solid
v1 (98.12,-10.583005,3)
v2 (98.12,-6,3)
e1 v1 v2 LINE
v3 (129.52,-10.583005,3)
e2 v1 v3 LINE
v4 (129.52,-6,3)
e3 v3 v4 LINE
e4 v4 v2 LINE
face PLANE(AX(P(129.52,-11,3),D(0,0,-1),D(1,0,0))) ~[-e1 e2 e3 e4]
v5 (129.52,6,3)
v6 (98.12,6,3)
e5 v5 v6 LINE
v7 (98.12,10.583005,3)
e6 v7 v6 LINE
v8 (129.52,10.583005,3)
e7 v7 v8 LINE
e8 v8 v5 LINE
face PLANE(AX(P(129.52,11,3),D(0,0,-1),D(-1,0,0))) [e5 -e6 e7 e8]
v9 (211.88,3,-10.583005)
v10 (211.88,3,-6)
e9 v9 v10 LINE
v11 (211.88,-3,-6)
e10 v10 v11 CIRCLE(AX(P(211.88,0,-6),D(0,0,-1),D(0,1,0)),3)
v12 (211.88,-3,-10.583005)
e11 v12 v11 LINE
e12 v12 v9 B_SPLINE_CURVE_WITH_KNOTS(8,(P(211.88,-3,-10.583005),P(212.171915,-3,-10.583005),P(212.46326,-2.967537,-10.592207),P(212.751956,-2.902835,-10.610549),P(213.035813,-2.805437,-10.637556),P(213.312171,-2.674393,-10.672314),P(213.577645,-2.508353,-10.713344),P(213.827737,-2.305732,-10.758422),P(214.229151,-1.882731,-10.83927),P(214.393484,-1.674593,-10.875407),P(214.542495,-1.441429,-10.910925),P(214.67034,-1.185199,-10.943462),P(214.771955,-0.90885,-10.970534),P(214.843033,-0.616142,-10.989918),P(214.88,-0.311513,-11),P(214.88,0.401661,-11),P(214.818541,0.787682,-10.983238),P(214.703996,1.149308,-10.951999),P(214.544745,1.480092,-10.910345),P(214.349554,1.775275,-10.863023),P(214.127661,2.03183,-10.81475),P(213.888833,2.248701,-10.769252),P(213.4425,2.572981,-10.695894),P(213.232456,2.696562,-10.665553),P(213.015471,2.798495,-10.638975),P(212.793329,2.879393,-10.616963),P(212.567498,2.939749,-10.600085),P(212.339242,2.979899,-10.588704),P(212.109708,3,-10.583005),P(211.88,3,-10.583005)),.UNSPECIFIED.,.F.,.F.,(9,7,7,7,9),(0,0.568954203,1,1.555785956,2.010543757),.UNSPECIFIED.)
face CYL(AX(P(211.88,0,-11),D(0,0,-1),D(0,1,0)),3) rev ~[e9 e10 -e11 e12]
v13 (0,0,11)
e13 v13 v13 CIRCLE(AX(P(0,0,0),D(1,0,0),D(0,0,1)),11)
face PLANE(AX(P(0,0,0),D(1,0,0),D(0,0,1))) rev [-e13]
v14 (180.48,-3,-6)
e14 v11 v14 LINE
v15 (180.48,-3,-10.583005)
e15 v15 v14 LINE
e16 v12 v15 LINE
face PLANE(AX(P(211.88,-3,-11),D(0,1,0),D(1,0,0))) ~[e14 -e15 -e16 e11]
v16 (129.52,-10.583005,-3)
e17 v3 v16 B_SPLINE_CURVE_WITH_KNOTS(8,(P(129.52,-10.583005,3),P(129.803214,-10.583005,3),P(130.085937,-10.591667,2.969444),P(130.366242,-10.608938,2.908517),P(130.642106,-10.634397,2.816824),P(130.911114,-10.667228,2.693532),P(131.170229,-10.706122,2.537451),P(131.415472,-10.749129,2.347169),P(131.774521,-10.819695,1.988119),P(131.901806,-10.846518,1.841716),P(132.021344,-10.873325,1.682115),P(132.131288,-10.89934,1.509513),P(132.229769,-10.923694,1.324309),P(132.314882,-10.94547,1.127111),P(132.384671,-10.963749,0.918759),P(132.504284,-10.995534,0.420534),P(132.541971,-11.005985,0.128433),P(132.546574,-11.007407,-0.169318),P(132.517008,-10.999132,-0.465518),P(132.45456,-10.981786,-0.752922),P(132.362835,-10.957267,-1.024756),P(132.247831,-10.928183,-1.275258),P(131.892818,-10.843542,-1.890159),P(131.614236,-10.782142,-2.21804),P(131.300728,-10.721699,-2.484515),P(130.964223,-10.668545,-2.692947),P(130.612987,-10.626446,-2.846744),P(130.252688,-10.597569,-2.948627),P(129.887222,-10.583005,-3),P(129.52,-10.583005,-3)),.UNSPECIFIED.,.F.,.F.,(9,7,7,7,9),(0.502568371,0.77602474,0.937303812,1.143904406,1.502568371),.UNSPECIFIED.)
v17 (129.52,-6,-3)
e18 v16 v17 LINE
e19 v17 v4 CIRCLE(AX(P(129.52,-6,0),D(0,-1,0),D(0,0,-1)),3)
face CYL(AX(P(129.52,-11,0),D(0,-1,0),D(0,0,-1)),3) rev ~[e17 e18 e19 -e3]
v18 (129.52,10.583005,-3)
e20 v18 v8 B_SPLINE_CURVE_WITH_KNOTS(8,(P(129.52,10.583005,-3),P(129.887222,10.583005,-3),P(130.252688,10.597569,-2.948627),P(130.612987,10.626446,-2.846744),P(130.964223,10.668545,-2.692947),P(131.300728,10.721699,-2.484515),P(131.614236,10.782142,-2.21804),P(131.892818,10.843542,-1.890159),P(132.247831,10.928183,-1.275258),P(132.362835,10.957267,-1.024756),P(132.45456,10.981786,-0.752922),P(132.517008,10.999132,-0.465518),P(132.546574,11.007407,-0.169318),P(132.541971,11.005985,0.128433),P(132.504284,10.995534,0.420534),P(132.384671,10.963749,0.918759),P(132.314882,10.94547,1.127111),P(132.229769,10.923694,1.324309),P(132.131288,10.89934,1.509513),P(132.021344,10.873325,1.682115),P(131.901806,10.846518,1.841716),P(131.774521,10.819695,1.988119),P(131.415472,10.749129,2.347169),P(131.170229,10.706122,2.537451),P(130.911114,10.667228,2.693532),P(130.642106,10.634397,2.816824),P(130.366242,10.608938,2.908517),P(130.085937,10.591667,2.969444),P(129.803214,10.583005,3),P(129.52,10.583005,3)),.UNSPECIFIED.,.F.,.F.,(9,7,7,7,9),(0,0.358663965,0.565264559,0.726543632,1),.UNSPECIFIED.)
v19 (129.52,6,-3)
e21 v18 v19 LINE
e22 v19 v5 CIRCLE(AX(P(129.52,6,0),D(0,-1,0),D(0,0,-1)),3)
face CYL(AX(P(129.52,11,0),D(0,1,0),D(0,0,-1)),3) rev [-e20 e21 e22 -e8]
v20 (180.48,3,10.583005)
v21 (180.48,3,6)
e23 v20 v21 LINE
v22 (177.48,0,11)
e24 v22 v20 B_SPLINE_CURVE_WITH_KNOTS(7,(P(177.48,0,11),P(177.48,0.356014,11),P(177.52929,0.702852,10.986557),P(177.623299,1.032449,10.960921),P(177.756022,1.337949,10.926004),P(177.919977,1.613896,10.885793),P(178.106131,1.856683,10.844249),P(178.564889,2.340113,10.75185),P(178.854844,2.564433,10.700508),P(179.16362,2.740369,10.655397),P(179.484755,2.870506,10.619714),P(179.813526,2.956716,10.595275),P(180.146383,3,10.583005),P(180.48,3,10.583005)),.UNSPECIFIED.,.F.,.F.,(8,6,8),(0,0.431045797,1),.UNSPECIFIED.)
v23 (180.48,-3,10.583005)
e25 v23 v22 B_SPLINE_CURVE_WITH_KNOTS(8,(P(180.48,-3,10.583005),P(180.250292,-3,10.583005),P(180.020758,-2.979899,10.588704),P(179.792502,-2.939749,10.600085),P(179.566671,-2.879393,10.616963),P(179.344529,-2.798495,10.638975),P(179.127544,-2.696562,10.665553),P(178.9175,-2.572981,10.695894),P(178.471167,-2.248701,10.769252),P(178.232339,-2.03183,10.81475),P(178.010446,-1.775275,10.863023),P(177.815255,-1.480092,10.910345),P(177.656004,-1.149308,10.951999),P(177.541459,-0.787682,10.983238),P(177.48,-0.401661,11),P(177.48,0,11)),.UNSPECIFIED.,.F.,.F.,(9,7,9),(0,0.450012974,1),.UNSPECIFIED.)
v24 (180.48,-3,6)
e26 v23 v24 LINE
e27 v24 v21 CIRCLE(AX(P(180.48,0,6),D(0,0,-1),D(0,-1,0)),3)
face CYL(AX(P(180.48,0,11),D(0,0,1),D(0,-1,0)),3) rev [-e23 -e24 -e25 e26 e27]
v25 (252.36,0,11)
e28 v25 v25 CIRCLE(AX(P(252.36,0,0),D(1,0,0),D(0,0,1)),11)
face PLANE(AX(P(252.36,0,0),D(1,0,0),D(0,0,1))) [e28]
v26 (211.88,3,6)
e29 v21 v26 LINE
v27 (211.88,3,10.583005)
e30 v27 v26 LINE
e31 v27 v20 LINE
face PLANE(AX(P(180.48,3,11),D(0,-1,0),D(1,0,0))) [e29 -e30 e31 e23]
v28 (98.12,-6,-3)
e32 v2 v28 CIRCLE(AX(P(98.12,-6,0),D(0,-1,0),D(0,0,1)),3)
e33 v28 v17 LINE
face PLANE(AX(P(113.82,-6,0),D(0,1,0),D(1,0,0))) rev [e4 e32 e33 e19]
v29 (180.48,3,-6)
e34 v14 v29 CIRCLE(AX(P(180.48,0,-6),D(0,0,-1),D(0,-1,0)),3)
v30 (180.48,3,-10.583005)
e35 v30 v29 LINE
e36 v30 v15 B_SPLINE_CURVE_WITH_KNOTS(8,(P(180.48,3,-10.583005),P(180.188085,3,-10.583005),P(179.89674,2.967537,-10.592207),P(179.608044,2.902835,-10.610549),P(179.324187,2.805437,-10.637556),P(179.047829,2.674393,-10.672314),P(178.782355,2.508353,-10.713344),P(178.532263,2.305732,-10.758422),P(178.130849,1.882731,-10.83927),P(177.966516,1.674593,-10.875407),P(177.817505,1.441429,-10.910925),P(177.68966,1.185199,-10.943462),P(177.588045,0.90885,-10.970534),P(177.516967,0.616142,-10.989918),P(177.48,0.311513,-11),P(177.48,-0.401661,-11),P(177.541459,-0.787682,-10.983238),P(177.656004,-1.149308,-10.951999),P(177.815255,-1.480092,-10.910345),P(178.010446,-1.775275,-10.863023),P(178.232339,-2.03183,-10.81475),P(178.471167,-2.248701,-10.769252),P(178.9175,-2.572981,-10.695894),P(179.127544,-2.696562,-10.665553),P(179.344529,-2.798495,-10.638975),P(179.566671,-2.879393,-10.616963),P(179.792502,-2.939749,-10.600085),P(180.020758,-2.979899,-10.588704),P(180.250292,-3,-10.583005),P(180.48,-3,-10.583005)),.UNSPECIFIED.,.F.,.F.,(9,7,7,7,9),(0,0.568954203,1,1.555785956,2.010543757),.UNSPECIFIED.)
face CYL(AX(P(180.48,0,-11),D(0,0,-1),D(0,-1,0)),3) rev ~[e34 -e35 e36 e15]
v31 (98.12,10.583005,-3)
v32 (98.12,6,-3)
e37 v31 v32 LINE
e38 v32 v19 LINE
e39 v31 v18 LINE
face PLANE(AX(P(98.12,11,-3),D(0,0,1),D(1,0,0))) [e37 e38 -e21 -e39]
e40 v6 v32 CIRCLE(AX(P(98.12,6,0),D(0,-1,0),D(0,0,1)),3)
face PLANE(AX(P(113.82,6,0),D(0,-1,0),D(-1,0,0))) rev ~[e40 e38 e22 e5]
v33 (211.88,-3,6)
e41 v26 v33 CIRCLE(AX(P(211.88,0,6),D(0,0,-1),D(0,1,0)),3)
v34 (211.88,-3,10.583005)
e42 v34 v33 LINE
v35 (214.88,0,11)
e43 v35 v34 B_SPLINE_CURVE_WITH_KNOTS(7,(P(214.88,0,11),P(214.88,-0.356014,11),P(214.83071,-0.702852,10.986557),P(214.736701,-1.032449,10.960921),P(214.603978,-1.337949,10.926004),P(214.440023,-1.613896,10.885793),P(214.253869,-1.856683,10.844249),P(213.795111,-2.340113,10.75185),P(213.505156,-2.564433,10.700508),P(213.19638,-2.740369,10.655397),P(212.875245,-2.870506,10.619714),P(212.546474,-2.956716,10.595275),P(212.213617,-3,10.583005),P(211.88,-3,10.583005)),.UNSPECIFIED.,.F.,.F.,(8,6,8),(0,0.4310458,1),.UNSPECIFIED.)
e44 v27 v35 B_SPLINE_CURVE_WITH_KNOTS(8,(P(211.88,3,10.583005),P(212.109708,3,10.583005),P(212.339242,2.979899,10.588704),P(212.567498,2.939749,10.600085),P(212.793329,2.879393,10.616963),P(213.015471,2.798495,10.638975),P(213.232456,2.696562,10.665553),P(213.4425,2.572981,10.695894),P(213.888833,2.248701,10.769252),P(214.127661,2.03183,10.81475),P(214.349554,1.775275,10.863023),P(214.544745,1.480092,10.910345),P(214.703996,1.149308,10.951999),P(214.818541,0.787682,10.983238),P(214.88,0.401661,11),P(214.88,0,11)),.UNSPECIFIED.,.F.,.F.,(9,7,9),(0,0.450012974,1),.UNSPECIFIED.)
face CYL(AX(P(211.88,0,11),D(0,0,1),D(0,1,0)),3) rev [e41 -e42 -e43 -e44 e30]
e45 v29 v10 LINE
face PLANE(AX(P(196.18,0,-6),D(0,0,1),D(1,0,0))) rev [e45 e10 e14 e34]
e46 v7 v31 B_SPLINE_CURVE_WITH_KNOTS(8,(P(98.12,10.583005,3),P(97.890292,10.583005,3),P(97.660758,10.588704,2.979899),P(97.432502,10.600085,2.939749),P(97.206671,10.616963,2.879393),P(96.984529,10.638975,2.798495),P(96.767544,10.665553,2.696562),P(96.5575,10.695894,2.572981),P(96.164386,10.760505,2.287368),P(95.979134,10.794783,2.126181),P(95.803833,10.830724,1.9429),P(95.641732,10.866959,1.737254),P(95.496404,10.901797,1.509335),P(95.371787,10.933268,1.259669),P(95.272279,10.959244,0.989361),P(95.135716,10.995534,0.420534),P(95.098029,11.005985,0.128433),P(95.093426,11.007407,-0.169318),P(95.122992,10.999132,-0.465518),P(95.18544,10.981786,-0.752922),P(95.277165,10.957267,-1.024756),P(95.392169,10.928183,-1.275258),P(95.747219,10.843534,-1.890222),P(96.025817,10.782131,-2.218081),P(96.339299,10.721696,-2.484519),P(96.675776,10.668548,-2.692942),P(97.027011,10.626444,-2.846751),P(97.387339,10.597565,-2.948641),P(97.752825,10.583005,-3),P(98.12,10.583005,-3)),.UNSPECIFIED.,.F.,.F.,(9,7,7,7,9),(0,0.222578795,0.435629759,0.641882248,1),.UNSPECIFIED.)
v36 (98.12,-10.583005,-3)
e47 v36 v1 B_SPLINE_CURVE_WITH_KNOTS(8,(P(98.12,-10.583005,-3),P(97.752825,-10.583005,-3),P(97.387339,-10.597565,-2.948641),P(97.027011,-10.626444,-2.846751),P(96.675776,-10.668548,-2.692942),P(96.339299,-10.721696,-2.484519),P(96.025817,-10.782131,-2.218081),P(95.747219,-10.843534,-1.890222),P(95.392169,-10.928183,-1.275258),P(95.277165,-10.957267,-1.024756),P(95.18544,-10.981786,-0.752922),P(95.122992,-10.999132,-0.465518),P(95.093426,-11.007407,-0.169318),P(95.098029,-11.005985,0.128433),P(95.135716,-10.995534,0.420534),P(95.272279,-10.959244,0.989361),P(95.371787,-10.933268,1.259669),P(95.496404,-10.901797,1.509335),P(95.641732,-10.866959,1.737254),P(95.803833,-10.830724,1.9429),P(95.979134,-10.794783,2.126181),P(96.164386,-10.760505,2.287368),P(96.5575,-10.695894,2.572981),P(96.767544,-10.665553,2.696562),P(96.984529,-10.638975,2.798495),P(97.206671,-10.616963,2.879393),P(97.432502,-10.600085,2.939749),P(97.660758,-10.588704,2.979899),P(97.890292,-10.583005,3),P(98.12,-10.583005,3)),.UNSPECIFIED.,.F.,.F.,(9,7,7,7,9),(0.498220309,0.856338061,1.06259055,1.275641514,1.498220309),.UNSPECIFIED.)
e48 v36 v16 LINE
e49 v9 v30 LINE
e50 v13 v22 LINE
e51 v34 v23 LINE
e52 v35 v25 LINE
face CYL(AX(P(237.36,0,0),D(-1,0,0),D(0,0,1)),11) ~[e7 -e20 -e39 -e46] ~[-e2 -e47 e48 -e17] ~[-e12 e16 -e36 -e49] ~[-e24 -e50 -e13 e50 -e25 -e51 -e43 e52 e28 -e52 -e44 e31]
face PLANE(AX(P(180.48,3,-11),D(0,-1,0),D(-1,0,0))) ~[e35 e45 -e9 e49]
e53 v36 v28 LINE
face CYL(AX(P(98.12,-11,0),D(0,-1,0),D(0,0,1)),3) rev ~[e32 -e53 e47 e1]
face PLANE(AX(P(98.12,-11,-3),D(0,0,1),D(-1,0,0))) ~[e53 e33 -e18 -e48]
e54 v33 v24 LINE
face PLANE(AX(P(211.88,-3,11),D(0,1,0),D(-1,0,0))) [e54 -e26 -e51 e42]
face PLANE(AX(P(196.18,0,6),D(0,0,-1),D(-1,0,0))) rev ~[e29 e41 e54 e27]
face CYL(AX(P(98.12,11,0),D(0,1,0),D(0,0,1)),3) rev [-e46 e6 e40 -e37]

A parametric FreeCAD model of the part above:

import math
import FreeCAD as App
import Part
import Sketcher

doc = App.newDocument("Part")
params = doc.addObject("Spreadsheet::Sheet", "Params")
for row, (alias, value) in enumerate([
    ("sketch1_width", "140 mm"),
    ("sketch1_height", "11 mm"),
    ("revolution_angle", "360 deg"),
    ("sketch2_radius", "3 mm"),
    ("sketch2_width", "31.4 mm"),
    ("pocket1_length", "5 mm"),
    ("sketch3_diameter", "22 mm"),
    ("pad1_length", "97.36 mm"),
    ("sketch4_radius", "3 mm"),
    ("sketch4_width", "31.4 mm"),
    ("pocket2_length", "5 mm"),
    ("sketch5_diameter", "22 mm"),
    ("pad2_length", "15 mm"),
], start=1):
    params.set(f"A{row}", alias)
    params.set(f"B{row}", "=" + value)
    params.setAlias(f"B{row}", alias)

body = doc.addObject("PartDesign::Body", "Body")

# Sketch on XY plane
sketch1 = body.newObject("Sketcher::SketchObject", "Sketch")
sketch1.AttachmentSupport = (doc.getObject("XY_Plane"), [""])
sketch1.MapMode = "FlatFace"
sketch1.addGeometry(Part.LineSegment(App.Vector(0, 11, 0), App.Vector(0, 0, 0)), False)
sketch1.addGeometry(Part.LineSegment(App.Vector(0, 0, 0), App.Vector(140, 0, 0)), False)
sketch1.addGeometry(Part.LineSegment(App.Vector(140, 0, 0), App.Vector(140, 11, 0)), False)
sketch1.addGeometry(Part.LineSegment(App.Vector(140, 11, 0), App.Vector(0, 11, 0)), False)
sketch1.addConstraint(Sketcher.Constraint("Coincident", 0, 2, 1, 1))
sketch1.addConstraint(Sketcher.Constraint("Coincident", 1, 2, 2, 1))
sketch1.addConstraint(Sketcher.Constraint("Coincident", 2, 2, 3, 1))
sketch1.addConstraint(Sketcher.Constraint("Coincident", 3, 2, 0, 1))
sketch1.addConstraint(Sketcher.Constraint("Vertical", 0))
sketch1.addConstraint(Sketcher.Constraint("Horizontal", 1))
sketch1.addConstraint(Sketcher.Constraint("Vertical", 2))
sketch1.addConstraint(Sketcher.Constraint("Horizontal", 3))
sketch1.addConstraint(Sketcher.Constraint("Coincident", 0, 2, -1, 1))
sketch1.addConstraint(Sketcher.Constraint("DistanceX", 1, 1, 1, 2, 140.0))
sketch1.addConstraint(Sketcher.Constraint("DistanceY", 0, 2, 0, 1, 11.0))
sketch1.setExpression("Constraints[9]", "Params.sketch1_width")
sketch1.setExpression("Constraints[10]", "Params.sketch1_height")
revolution = body.newObject("PartDesign::Revolution", "Revolution")
revolution.Profile = sketch1
revolution.ReferenceAxis = (sketch1, ["H_Axis"])
revolution.setExpression("Angle", "Params.revolution_angle")

# Sketch on XZ plane
sketch2 = body.newObject("Sketcher::SketchObject", "Sketch001")
sketch2.AttachmentSupport = (doc.getObject("XZ_Plane"), [""])
sketch2.MapMode = "FlatFace"
sketch2.AttachmentOffset = App.Placement(App.Vector(0, 0, -11), App.Rotation())
sketch2.addGeometry(Part.LineSegment(App.Vector(98.1, 3, 0), App.Vector(129.5, 3, 0)), False)
sketch2.addGeometry(Part.ArcOfCircle(Part.Circle(App.Vector(129.5, 0, 0), App.Vector(0, 0, 1), 3), math.radians(-90), math.radians(90)), False)
sketch2.addGeometry(Part.LineSegment(App.Vector(129.5, -3, 0), App.Vector(98.1, -3, 0)), False)
sketch2.addGeometry(Part.ArcOfCircle(Part.Circle(App.Vector(98.1, 0, 0), App.Vector(0, 0, 1), 3), math.radians(90), math.radians(270)), False)
sketch2.addConstraint(Sketcher.Constraint("Tangent", 0, 2, 1, 2))
sketch2.addConstraint(Sketcher.Constraint("Tangent", 1, 1, 2, 1))
sketch2.addConstraint(Sketcher.Constraint("Tangent", 2, 2, 3, 2))
sketch2.addConstraint(Sketcher.Constraint("Tangent", 3, 1, 0, 1))
sketch2.addConstraint(Sketcher.Constraint("Horizontal", 0))
sketch2.addConstraint(Sketcher.Constraint("Horizontal", 2))
sketch2.addConstraint(Sketcher.Constraint("PointOnObject", 1, 3, -1))
sketch2.addConstraint(Sketcher.Constraint("Radius", 1, 3.0))
sketch2.addConstraint(Sketcher.Constraint("DistanceX", 0, 1, 0, 2, 31.4))
sketch2.addConstraint(Sketcher.Constraint("DistanceX", -1, 1, 1, 3, 129.52))
sketch2.setExpression("Constraints[7]", "Params.sketch2_radius")
sketch2.setExpression("Constraints[8]", "Params.sketch2_width")
pocket1 = body.newObject("PartDesign::Pocket", "Pocket")
pocket1.Profile = sketch2
pocket1.setExpression("Length", "Params.pocket1_length")
pocket1.Reversed = True
doc.recompute()

mirrored = body.newObject("PartDesign::Mirrored", "Mirrored")
mirrored.Originals = [pocket1]
mirrored.MirrorPlane = (doc.getObject("XZ_Plane"), [""])
body.Tip = mirrored

# Sketch on YZ plane
sketch3 = body.newObject("Sketcher::SketchObject", "Sketch002")
sketch3.AttachmentSupport = (doc.getObject("YZ_Plane"), [""])
sketch3.MapMode = "FlatFace"
sketch3.AttachmentOffset = App.Placement(App.Vector(0, 0, 140), App.Rotation())
sketch3.addGeometry(Part.Circle(App.Vector(0, 0, 0), App.Vector(0, 0, 1), 11), False)
sketch3.addConstraint(Sketcher.Constraint("Coincident", 0, 3, -1, 1))
sketch3.addConstraint(Sketcher.Constraint("Diameter", 0, 22.0))
sketch3.setExpression("Constraints[1]", "Params.sketch3_diameter")
pad1 = body.newObject("PartDesign::Pad", "Pad")
pad1.Profile = sketch3
pad1.setExpression("Length", "Params.pad1_length")

# Sketch on XY plane
sketch4 = body.newObject("Sketcher::SketchObject", "Sketch003")
sketch4.AttachmentSupport = (doc.getObject("XY_Plane"), [""])
sketch4.MapMode = "FlatFace"
sketch4.AttachmentOffset = App.Placement(App.Vector(0, 0, 11), App.Rotation())
sketch4.addGeometry(Part.LineSegment(App.Vector(180.5, -3, 0), App.Vector(211.9, -3, 0)), False)
sketch4.addGeometry(Part.ArcOfCircle(Part.Circle(App.Vector(211.9, 0, 0), App.Vector(0, 0, 1), 3), math.radians(-90), math.radians(90)), False)
sketch4.addGeometry(Part.LineSegment(App.Vector(211.9, 3, 0), App.Vector(180.5, 3, 0)), False)
sketch4.addGeometry(Part.ArcOfCircle(Part.Circle(App.Vector(180.5, 0, 0), App.Vector(0, 0, 1), 3), math.radians(90), math.radians(270)), False)
sketch4.addConstraint(Sketcher.Constraint("Tangent", 0, 2, 1, 1))
sketch4.addConstraint(Sketcher.Constraint("Tangent", 1, 2, 2, 1))
sketch4.addConstraint(Sketcher.Constraint("Tangent", 2, 2, 3, 1))
sketch4.addConstraint(Sketcher.Constraint("Tangent", 3, 2, 0, 1))
sketch4.addConstraint(Sketcher.Constraint("Horizontal", 0))
sketch4.addConstraint(Sketcher.Constraint("Horizontal", 2))
sketch4.addConstraint(Sketcher.Constraint("PointOnObject", 1, 3, -1))
sketch4.addConstraint(Sketcher.Constraint("Radius", 1, 3.0))
sketch4.addConstraint(Sketcher.Constraint("DistanceX", 0, 1, 0, 2, 31.4))
sketch4.addConstraint(Sketcher.Constraint("DistanceX", -1, 1, 1, 3, 211.88))
sketch4.setExpression("Constraints[7]", "Params.sketch4_radius")
sketch4.setExpression("Constraints[8]", "Params.sketch4_width")
pocket2 = body.newObject("PartDesign::Pocket", "Pocket001")
pocket2.Profile = sketch4
pocket2.setExpression("Length", "Params.pocket2_length")
doc.recompute()

mirrored2 = body.newObject("PartDesign::Mirrored", "Mirrored001")
mirrored2.Originals = [pocket2]
mirrored2.MirrorPlane = (doc.getObject("XY_Plane"), [""])
body.Tip = mirrored2

# Sketch on YZ plane
sketch5 = body.newObject("Sketcher::SketchObject", "Sketch004")
sketch5.AttachmentSupport = (doc.getObject("YZ_Plane"), [""])
sketch5.MapMode = "FlatFace"
sketch5.AttachmentOffset = App.Placement(App.Vector(0, 0, 237.36), App.Rotation())
sketch5.addGeometry(Part.Circle(App.Vector(0, 0, 0), App.Vector(0, 0, 1), 11), False)
sketch5.addConstraint(Sketcher.Constraint("Coincident", 0, 3, -1, 1))
sketch5.addConstraint(Sketcher.Constraint("Diameter", 0, 22.0))
sketch5.setExpression("Constraints[1]", "Params.sketch5_diameter")
pad2 = body.newObject("PartDesign::Pad", "Pad001")
pad2.Profile = sketch5
pad2.setExpression("Length", "Params.pad2_length")

doc.recompute()
